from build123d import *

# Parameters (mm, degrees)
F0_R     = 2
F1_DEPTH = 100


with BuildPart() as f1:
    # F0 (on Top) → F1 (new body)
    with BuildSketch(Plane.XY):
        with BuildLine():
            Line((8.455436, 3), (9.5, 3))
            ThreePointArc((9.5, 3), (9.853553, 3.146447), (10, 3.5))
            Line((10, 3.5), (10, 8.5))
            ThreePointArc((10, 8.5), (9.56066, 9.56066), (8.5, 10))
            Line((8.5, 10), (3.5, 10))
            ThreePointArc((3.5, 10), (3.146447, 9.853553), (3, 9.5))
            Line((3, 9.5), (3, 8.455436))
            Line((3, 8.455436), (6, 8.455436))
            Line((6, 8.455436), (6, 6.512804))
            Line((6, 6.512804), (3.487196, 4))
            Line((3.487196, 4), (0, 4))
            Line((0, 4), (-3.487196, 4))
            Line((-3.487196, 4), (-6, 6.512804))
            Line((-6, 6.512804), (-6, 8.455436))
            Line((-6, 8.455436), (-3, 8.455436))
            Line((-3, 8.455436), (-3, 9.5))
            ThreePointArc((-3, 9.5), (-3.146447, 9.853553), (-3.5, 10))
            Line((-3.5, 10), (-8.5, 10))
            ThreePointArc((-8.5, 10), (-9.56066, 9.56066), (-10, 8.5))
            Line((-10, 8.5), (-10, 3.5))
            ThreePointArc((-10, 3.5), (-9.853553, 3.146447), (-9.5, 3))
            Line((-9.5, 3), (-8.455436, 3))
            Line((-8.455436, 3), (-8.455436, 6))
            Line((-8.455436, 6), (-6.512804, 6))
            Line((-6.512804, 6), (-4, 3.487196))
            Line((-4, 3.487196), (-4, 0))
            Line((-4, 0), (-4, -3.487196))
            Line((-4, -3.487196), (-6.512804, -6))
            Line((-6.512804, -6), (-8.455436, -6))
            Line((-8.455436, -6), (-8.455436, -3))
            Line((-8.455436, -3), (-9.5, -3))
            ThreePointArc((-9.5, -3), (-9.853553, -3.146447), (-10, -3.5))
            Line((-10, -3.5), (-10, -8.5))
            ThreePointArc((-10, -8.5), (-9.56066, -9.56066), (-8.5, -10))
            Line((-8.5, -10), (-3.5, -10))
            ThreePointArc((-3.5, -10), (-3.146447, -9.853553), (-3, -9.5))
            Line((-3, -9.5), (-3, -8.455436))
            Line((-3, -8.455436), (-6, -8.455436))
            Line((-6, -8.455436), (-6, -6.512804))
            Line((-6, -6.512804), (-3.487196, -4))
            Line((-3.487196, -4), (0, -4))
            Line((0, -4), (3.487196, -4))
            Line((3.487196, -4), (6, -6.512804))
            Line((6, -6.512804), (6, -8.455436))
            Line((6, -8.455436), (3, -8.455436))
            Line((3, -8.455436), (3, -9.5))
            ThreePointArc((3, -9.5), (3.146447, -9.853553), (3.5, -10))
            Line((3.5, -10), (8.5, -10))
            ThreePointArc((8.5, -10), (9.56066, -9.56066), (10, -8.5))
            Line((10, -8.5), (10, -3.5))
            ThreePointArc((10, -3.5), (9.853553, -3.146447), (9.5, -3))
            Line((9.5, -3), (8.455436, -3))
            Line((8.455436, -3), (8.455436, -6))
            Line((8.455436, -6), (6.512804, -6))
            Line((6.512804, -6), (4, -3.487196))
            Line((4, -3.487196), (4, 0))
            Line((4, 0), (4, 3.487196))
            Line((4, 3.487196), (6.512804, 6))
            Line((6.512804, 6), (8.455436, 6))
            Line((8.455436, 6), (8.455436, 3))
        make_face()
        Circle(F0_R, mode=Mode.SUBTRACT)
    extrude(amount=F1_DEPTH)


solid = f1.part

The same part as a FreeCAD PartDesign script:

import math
import FreeCAD as App
import Part
import Sketcher

doc = App.newDocument("Part")
body = doc.addObject("PartDesign::Body", "Body")

sketch1 = body.newObject("Sketcher::SketchObject", "Sketch")
sketch1.AttachmentSupport = (doc.getObject("XY_Plane"), [""])
sketch1.MapMode = "FlatFace"
sketch1.addGeometry([
    Part.LineSegment(App.Vector(8.5, 3, 0), App.Vector(9.5, 3, 0)),
    Part.ArcOfCircle(Part.Circle(App.Vector(9.5, 3.5, 0), App.Vector(0, 0, 1), 0.5), math.radians(-90), math.radians(0)),
    Part.LineSegment(App.Vector(10, 3.5, 0), App.Vector(10, 8.5, 0)),
    Part.ArcOfCircle(Part.Circle(App.Vector(8.5, 8.5, 0), App.Vector(0, 0, 1), 1.5), math.radians(0), math.radians(90)),
    Part.LineSegment(App.Vector(8.5, 10, 0), App.Vector(3.5, 10, 0)),
    Part.ArcOfCircle(Part.Circle(App.Vector(3.5, 9.5, 0), App.Vector(0, 0, 1), 0.5), math.radians(90), math.radians(180)),
    Part.LineSegment(App.Vector(3, 9.5, 0), App.Vector(3, 8.5, 0)),
    Part.LineSegment(App.Vector(3, 8.5, 0), App.Vector(6, 8.5, 0)),
    Part.LineSegment(App.Vector(6, 8.5, 0), App.Vector(6, 6.5, 0)),
    Part.LineSegment(App.Vector(6, 6.5, 0), App.Vector(3.5, 4, 0)),
    Part.LineSegment(App.Vector(3.5, 4, 0), App.Vector(-3.5, 4, 0)),
    Part.LineSegment(App.Vector(-3.5, 4, 0), App.Vector(-6, 6.5, 0)),
    Part.LineSegment(App.Vector(-6, 6.5, 0), App.Vector(-6, 8.5, 0)),
    Part.LineSegment(App.Vector(-6, 8.5, 0), App.Vector(-3, 8.5, 0)),
    Part.LineSegment(App.Vector(-3, 8.5, 0), App.Vector(-3, 9.5, 0)),
    Part.ArcOfCircle(Part.Circle(App.Vector(-3.5, 9.5, 0), App.Vector(0, 0, 1), 0.5), math.radians(0), math.radians(90)),
    Part.LineSegment(App.Vector(-3.5, 10, 0), App.Vector(-8.5, 10, 0)),
    Part.ArcOfCircle(Part.Circle(App.Vector(-8.5, 8.5, 0), App.Vector(0, 0, 1), 1.5), math.radians(90), math.radians(180)),
    Part.LineSegment(App.Vector(-10, 8.5, 0), App.Vector(-10, 3.5, 0)),
    Part.ArcOfCircle(Part.Circle(App.Vector(-9.5, 3.5, 0), App.Vector(0, 0, 1), 0.5), math.radians(-180), math.radians(-90)),
    Part.LineSegment(App.Vector(-9.5, 3, 0), App.Vector(-8.5, 3, 0)),
    Part.LineSegment(App.Vector(-8.5, 3, 0), App.Vector(-8.5, 6, 0)),
    Part.LineSegment(App.Vector(-8.5, 6, 0), App.Vector(-6.5, 6, 0)),
    Part.LineSegment(App.Vector(-6.5, 6, 0), App.Vector(-4, 3.5, 0)),
    Part.LineSegment(App.Vector(-4, 3.5, 0), App.Vector(-4, -3.5, 0)),
    Part.LineSegment(App.Vector(-4, -3.5, 0), App.Vector(-6.5, -6, 0)),
    Part.LineSegment(App.Vector(-6.5, -6, 0), App.Vector(-8.5, -6, 0)),
    Part.LineSegment(App.Vector(-8.5, -6, 0), App.Vector(-8.5, -3, 0)),
    Part.LineSegment(App.Vector(-8.5, -3, 0), App.Vector(-9.5, -3, 0)),
    Part.ArcOfCircle(Part.Circle(App.Vector(-9.5, -3.5, 0), App.Vector(0, 0, 1), 0.5), math.radians(90), math.radians(180)),
    Part.LineSegment(App.Vector(-10, -3.5, 0), App.Vector(-10, -8.5, 0)),
    Part.ArcOfCircle(Part.Circle(App.Vector(-8.5, -8.5, 0), App.Vector(0, 0, 1), 1.5), math.radians(-180), math.radians(-90)),
    Part.LineSegment(App.Vector(-8.5, -10, 0), App.Vector(-3.5, -10, 0)),
    Part.ArcOfCircle(Part.Circle(App.Vector(-3.5, -9.5, 0), App.Vector(0, 0, 1), 0.5), math.radians(-90), math.radians(0)),
    Part.LineSegment(App.Vector(-3, -9.5, 0), App.Vector(-3, -8.5, 0)),
    Part.LineSegment(App.Vector(-3, -8.5, 0), App.Vector(-6, -8.5, 0)),
    Part.LineSegment(App.Vector(-6, -8.5, 0), App.Vector(-6, -6.5, 0)),
    Part.LineSegment(App.Vector(-6, -6.5, 0), App.Vector(-3.5, -4, 0)),
    Part.LineSegment(App.Vector(-3.5, -4, 0), App.Vector(3.5, -4, 0)),
    Part.LineSegment(App.Vector(3.5, -4, 0), App.Vector(6, -6.5, 0)),
    Part.LineSegment(App.Vector(6, -6.5, 0), App.Vector(6, -8.5, 0)),
    Part.LineSegment(App.Vector(6, -8.5, 0), App.Vector(3, -8.5, 0)),
    Part.LineSegment(App.Vector(3, -8.5, 0), App.Vector(3, -9.5, 0)),
    Part.ArcOfCircle(Part.Circle(App.Vector(3.5, -9.5, 0), App.Vector(0, 0, 1), 0.5), math.radians(-180), math.radians(-90)),
    Part.LineSegment(App.Vector(3.5, -10, 0), App.Vector(8.5, -10, 0)),
    Part.ArcOfCircle(Part.Circle(App.Vector(8.5, -8.5, 0), App.Vector(0, 0, 1), 1.5), math.radians(-90), math.radians(0)),
    Part.LineSegment(App.Vector(10, -8.5, 0), App.Vector(10, -3.5, 0)),
    Part.ArcOfCircle(Part.Circle(App.Vector(9.5, -3.5, 0), App.Vector(0, 0, 1), 0.5), math.radians(0), math.radians(90)),
    Part.LineSegment(App.Vector(9.5, -3, 0), App.Vector(8.5, -3, 0)),
    Part.LineSegment(App.Vector(8.5, -3, 0), App.Vector(8.5, -6, 0)),
    Part.LineSegment(App.Vector(8.5, -6, 0), App.Vector(6.5, -6, 0)),
    Part.LineSegment(App.Vector(6.5, -6, 0), App.Vector(4, -3.5, 0)),
    Part.LineSegment(App.Vector(4, -3.5, 0), App.Vector(4, 3.5, 0)),
    Part.LineSegment(App.Vector(4, 3.5, 0), App.Vector(6.5, 6, 0)),
    Part.LineSegment(App.Vector(6.5, 6, 0), App.Vector(8.5, 6, 0)),
    Part.LineSegment(App.Vector(8.5, 6, 0), App.Vector(8.5, 3, 0)),
    Part.Circle(App.Vector(0, 0, 0), App.Vector(0, 0, 1), 2),
], False)
sketch1.addConstraint([
    Sketcher.Constraint("Coincident", 0, 2, 1, 1),
    Sketcher.Constraint("Coincident", 1, 2, 2, 1),
    Sketcher.Constraint("Tangent", 2, 2, 3, 1),
    Sketcher.Constraint("Tangent", 3, 2, 4, 1),
    Sketcher.Constraint("Coincident", 4, 2, 5, 1),
    Sketcher.Constraint("Coincident", 5, 2, 6, 1),
    Sketcher.Constraint("Coincident", 6, 2, 7, 1),
    Sketcher.Constraint("Coincident", 7, 2, 8, 1),
    Sketcher.Constraint("Coincident", 8, 2, 9, 1),
    Sketcher.Constraint("Coincident", 9, 2, 10, 1),
    Sketcher.Constraint("Coincident", 10, 2, 11, 1),
    Sketcher.Constraint("Coincident", 11, 2, 12, 1),
    Sketcher.Constraint("Coincident", 12, 2, 13, 1),
    Sketcher.Constraint("Coincident", 13, 2, 14, 1),
    Sketcher.Constraint("Coincident", 14, 2, 15, 1),
    Sketcher.Constraint("Coincident", 15, 2, 16, 1),
    Sketcher.Constraint("Tangent", 16, 2, 17, 1),
    Sketcher.Constraint("Tangent", 17, 2, 18, 1),
    Sketcher.Constraint("Coincident", 18, 2, 19, 1),
    Sketcher.Constraint("Coincident", 19, 2, 20, 1),
    Sketcher.Constraint("Coincident", 20, 2, 21, 1),
    Sketcher.Constraint("Coincident", 21, 2, 22, 1),
    Sketcher.Constraint("Coincident", 22, 2, 23, 1),
    Sketcher.Constraint("Coincident", 23, 2, 24, 1),
    Sketcher.Constraint("Coincident", 24, 2, 25, 1),
    Sketcher.Constraint("Coincident", 25, 2, 26, 1),
    Sketcher.Constraint("Coincident", 26, 2, 27, 1),
    Sketcher.Constraint("Coincident", 27, 2, 28, 1),
    Sketcher.Constraint("Coincident", 28, 2, 29, 1),
    Sketcher.Constraint("Coincident", 29, 2, 30, 1),
    Sketcher.Constraint("Tangent", 30, 2, 31, 1),
    Sketcher.Constraint("Tangent", 31, 2, 32, 1),
    Sketcher.Constraint("Coincident", 32, 2, 33, 1),
    Sketcher.Constraint("Coincident", 33, 2, 34, 1),
    Sketcher.Constraint("Coincident", 34, 2, 35, 1),
    Sketcher.Constraint("Coincident", 35, 2, 36, 1),
    Sketcher.Constraint("Coincident", 36, 2, 37, 1),
    Sketcher.Constraint("Coincident", 37, 2, 38, 1),
    Sketcher.Constraint("Coincident", 38, 2, 39, 1),
    Sketcher.Constraint("Coincident", 39, 2, 40, 1),
    Sketcher.Constraint("Coincident", 40, 2, 41, 1),
    Sketcher.Constraint("Coincident", 41, 2, 42, 1),
    Sketcher.Constraint("Coincident", 42, 2, 43, 1),
    Sketcher.Constraint("Coincident", 43, 2, 44, 1),
    Sketcher.Constraint("Tangent", 44, 2, 45, 1),
    Sketcher.Constraint("Tangent", 45, 2, 46, 1),
    Sketcher.Constraint("Coincident", 46, 2, 47, 1),
    Sketcher.Constraint("Coincident", 47, 2, 48, 1),
    Sketcher.Constraint("Coincident", 48, 2, 49, 1),
    Sketcher.Constraint("Coincident", 49, 2, 50, 1),
    Sketcher.Constraint("Coincident", 50, 2, 51, 1),
    Sketcher.Constraint("Coincident", 51, 2, 52, 1),
    Sketcher.Constraint("Coincident", 52, 2, 53, 1),
    Sketcher.Constraint("Coincident", 53, 2, 54, 1),
    Sketcher.Constraint("Coincident", 54, 2, 55, 1),
    Sketcher.Constraint("Coincident", 55, 2, 0, 1),
    Sketcher.Constraint("Horizontal", 0),
    Sketcher.Constraint("Vertical", 2),
    Sketcher.Constraint("Horizontal", 4),
    Sketcher.Constraint("Vertical", 6),
    Sketcher.Constraint("Horizontal", 7),
    Sketcher.Constraint("Vertical", 8),
    Sketcher.Constraint("Horizontal", 10),
    Sketcher.Constraint("Vertical", 12),
    Sketcher.Constraint("Horizontal", 13),
    Sketcher.Constraint("Vertical", 14),
    Sketcher.Constraint("Horizontal", 16),
    Sketcher.Constraint("Vertical", 18),
    Sketcher.Constraint("Horizontal", 20),
    Sketcher.Constraint("Vertical", 21),
    Sketcher.Constraint("Horizontal", 22),
    Sketcher.Constraint("Vertical", 24),
    Sketcher.Constraint("Horizontal", 26),
    Sketcher.Constraint("Vertical", 27),
    Sketcher.Constraint("Horizontal", 28),
    Sketcher.Constraint("Vertical", 30),
    Sketcher.Constraint("Horizontal", 32),
    Sketcher.Constraint("Vertical", 34),
    Sketcher.Constraint("Horizontal", 35),
    Sketcher.Constraint("Vertical", 36),
    Sketcher.Constraint("Horizontal", 38),
    Sketcher.Constraint("Vertical", 40),
    Sketcher.Constraint("Horizontal", 41),
    Sketcher.Constraint("Vertical", 42),
    Sketcher.Constraint("Horizontal", 44),
    Sketcher.Constraint("Vertical", 46),
    Sketcher.Constraint("Horizontal", 48),
    Sketcher.Constraint("Vertical", 49),
    Sketcher.Constraint("Horizontal", 50),
    Sketcher.Constraint("Vertical", 52),
    Sketcher.Constraint("Horizontal", 54),
    Sketcher.Constraint("Vertical", 55),
    Sketcher.Constraint("Coincident", 56, 3, -1, 1),
    Sketcher.Constraint("Equal", 1, 5),
    Sketcher.Constraint("Equal", 5, 15),
    Sketcher.Constraint("Equal", 3, 17),
    Sketcher.Constraint("Equal", 15, 19),
    Sketcher.Constraint("Equal", 19, 29),
    Sketcher.Constraint("Equal", 17, 31),
    Sketcher.Constraint("Equal", 29, 33),
    Sketcher.Constraint("Equal", 33, 43),
    Sketcher.Constraint("Equal", 31, 45),
    Sketcher.Constraint("Equal", 43, 47),
    Sketcher.Constraint("Symmetric", 1, 3, 29, 3, -1, 1),
    Sketcher.Constraint("Symmetric", 5, 3, 33, 3, -1, 1),
    Sketcher.Constraint("Symmetric", 15, 3, 43, 3, -1, 1),
    Sketcher.Constraint("Symmetric", 19, 3, 47, 3, -1, 1),
    Sketcher.Constraint("Symmetric", 7, 2, 35, 2, -1, 1),
    Sketcher.Constraint("Symmetric", 9, 2, 37, 2, -1, 1),
    Sketcher.Constraint("Symmetric", 11, 2, 39, 2, -1, 1),
    Sketcher.Constraint("Symmetric", 21, 2, 49, 2, -1, 1),
    Sketcher.Constraint("Symmetric", 23, 2, 51, 2, -1, 1),
    Sketcher.Constraint("Symmetric", 25, 2, 53, 2, -1, 1),
    Sketcher.Constraint("Symmetric", 5, 3, 15, 3, -2),
    Sketcher.Constraint("Symmetric", 1, 3, 19, 3, -2),
    Sketcher.Constraint("Symmetric", 8, 2, 11, 2, -2),
    Sketcher.Constraint("Symmetric", 26, 2, 49, 2, -2),
    Sketcher.Constraint("Perpendicular", 9, 11),
    Sketcher.Constraint("Parallel", 11, 23),
    Sketcher.Constraint("Perpendicular", 23, 25),
    Sketcher.Constraint("Parallel", 25, 37),
    Sketcher.Constraint("Perpendicular", 37, 39),
    Sketcher.Constraint("Parallel", 39, 51),
    Sketcher.Constraint("Perpendicular", 51, 53),
    Sketcher.Constraint("Horizontal", 19, 3, 1, 2),
    Sketcher.Constraint("Horizontal", 15, 3, 5, 2),
    Sketcher.Constraint("Horizontal", 7, 2, 12, 2),
    Sketcher.Constraint("Horizontal", 5, 2, 14, 2),
    Sketcher.Constraint("Horizontal", 1, 2, 18, 2),
    Sketcher.Constraint("Horizontal", 47, 3, 29, 2),
    Sketcher.Constraint("Horizontal", 43, 3, 33, 2),
    Sketcher.Constraint("Horizontal", 35, 2, 40, 2),
    Sketcher.Constraint("Horizontal", 33, 2, 42, 2),
    Sketcher.Constraint("Horizontal", 29, 2, 46, 2),
    Sketcher.Constraint("Horizontal", 24, 2, 51, 2),
    Sketcher.Constraint("Vertical", 47, 3, 0, 2),
    Sketcher.Constraint("Vertical", 43, 3, 4, 2),
    Sketcher.Constraint("Vertical", 33, 3, 15, 2),
    Sketcher.Constraint("Vertical", 29, 3, 19, 2),
    Sketcher.Constraint("Vertical", 22, 2, 25, 2),
    Sketcher.Constraint("Vertical", 19, 2, 28, 2),
    Sketcher.Constraint("Vertical", 15, 2, 32, 2),
    Sketcher.Constraint("Vertical", 4, 2, 43, 2),
    Sketcher.Constraint("Vertical", 0, 2, 47, 2),
    Sketcher.Constraint("Vertical", 49, 2, 54, 2),
    Sketcher.Constraint("Equal", 44, 2),
    Sketcher.Constraint("Equal", 48, 6),
    Sketcher.Constraint("Equal", 54, 8),
    Sketcher.Constraint("Equal", 41, 21),
    Sketcher.Constraint("Equal", 38, 24),
    Sketcher.Constraint("Equal", 11, 23),
    Sketcher.Constraint("Diameter", 56, 4.0),
    Sketcher.Constraint("Radius", 1, 0.500001),
    Sketcher.Constraint("Radius", 3, 1.500001),
    Sketcher.Constraint("DistanceX", 4, 2, 4, 1, 5.0),
    Sketcher.Constraint("DistanceX", 7, 1, 7, 2, 3.0),
    Sketcher.Constraint("DistanceY", -1, 1, 0, 2, 3.0),
    Sketcher.Constraint("DistanceY", -1, 1, 9, 2, 4.0),
    Sketcher.Constraint("Distance", 9, 3.553641),
    Sketcher.Constraint("DistanceX", 0, 1, 0, 2, 1.044564),
])
pad1 = body.newObject("PartDesign::Pad", "Pad")
pad1.Profile = sketch1
pad1.Length = 100

doc.recompute()
